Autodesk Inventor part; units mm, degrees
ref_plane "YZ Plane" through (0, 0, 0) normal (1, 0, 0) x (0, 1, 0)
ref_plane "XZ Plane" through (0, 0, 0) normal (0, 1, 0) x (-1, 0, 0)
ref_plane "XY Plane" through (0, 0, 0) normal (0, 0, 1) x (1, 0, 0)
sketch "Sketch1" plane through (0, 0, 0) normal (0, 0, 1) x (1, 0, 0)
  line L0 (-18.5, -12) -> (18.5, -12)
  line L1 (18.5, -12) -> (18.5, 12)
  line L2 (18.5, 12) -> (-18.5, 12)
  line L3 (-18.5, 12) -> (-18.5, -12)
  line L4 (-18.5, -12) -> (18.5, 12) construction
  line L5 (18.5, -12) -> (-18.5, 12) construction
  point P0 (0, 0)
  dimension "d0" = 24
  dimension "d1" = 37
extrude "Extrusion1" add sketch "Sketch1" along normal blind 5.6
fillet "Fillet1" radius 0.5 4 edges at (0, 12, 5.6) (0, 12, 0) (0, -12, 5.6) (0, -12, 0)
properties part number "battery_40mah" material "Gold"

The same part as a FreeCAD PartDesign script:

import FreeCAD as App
import Part
import Sketcher
from FreeCAD import Vector


def edges_at(feature, points):
    """Names of the edges that pass closest to the given points."""
    edges = feature.Shape.Edges
    near = lambda p: min(range(len(edges)), key=lambda i: edges[i].distToShape(Part.Vertex(*p))[0])
    return sorted({f"Edge{near(p) + 1}" for p in points})

doc = App.newDocument("Part")
body = doc.addObject("PartDesign::Body", "Body")

sketch1 = doc.addObject("Sketcher::SketchObject", "Sketch")
body.addObject(sketch1)
sketch1.AttachmentSupport = (doc.XY_Plane, [""])
sketch1.MapMode = "FlatFace"
sketch1.addGeometry(Part.LineSegment(Vector(-18, 12, 0), Vector(-18, -12, 0)), False)
sketch1.addGeometry(Part.LineSegment(Vector(-18, -12, 0), Vector(18, -12, 0)), False)
sketch1.addGeometry(Part.LineSegment(Vector(18, -12, 0), Vector(18, 12, 0)), False)
sketch1.addGeometry(Part.LineSegment(Vector(18, 12, 0), Vector(-18, 12, 0)), False)
sketch1.addConstraint(Sketcher.Constraint("Coincident", 0, 2, 1, 1))
sketch1.addConstraint(Sketcher.Constraint("Coincident", 1, 2, 2, 1))
sketch1.addConstraint(Sketcher.Constraint("Coincident", 2, 2, 3, 1))
sketch1.addConstraint(Sketcher.Constraint("Coincident", 3, 2, 0, 1))
sketch1.addConstraint(Sketcher.Constraint("Vertical", 0))
sketch1.addConstraint(Sketcher.Constraint("Horizontal", 1))
sketch1.addConstraint(Sketcher.Constraint("Vertical", 2))
sketch1.addConstraint(Sketcher.Constraint("Horizontal", 3))
sketch1.addConstraint(Sketcher.Constraint("Symmetric", 0, 2, 2, 2, -1, 1))
sketch1.addConstraint(Sketcher.Constraint("DistanceX", 1, 1, 1, 2, 37.0))
sketch1.addConstraint(Sketcher.Constraint("DistanceY", 0, 2, 0, 1, 24.0))
pad1 = doc.addObject("PartDesign::Pad", "Pad")
body.addObject(pad1)
pad1.Profile = sketch1
pad1.Length = 5.6
doc.recompute()

fillet = doc.addObject("PartDesign::Fillet", "Fillet")
body.addObject(fillet)
fillet.Base = (pad1, edges_at(pad1, [
    (0, 12, 5.6),
    (0, 12, 0),
    (0, -12, 5.6),
    (0, -12, 0),
]))
fillet.Radius = 0.5

doc.recompute()
